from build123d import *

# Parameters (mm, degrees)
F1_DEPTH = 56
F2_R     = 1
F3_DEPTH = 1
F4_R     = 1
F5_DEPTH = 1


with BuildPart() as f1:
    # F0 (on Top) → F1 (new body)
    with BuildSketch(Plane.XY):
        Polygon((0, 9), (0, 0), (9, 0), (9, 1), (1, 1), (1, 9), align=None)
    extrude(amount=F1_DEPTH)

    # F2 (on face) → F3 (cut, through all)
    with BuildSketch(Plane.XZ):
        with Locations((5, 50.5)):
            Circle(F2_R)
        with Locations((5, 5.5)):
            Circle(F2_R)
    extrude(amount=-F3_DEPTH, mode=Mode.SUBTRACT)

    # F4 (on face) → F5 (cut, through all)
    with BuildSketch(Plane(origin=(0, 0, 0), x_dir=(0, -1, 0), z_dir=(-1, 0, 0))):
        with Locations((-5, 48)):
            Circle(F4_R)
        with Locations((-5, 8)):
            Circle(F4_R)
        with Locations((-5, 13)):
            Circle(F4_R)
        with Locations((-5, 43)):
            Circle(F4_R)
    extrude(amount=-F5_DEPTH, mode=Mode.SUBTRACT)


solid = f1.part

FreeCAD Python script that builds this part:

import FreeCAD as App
import Part
import Sketcher

V = App.Vector


def add_polygon(sketch, points):
    """Adds a closed chain of lines whose ends are joined by coincident constraints."""
    first, n = sketch.GeometryCount, len(points)
    for a, b in zip(points, points[1:] + points[:1]):
        sketch.addGeometry(Part.LineSegment(App.Vector(*a, 0), App.Vector(*b, 0)), False)
    for i in range(n):
        sketch.addConstraint(Sketcher.Constraint("Coincident", first + i, 2, first + (i + 1) % n, 1))

doc = App.newDocument("Part")
params = doc.addObject("Spreadsheet::Sheet", "Params")
for row, (alias, value) in enumerate([
    ("sketch1_width", "9 mm"),
    ("sketch1_width2", "8 mm"),
    ("pad1_length", "56 mm"),
    ("sketch2_diameter", "2 mm"),
    ("sketch3_diameter", "2 mm"),
], start=1):
    params.set(f"A{row}", alias)
    params.set(f"B{row}", "=" + value)
    params.setAlias(f"B{row}", alias)

body = doc.addObject("PartDesign::Body", "Body")

# Sketch on XY plane
sketch1 = body.newObject("Sketcher::SketchObject", "Sketch")
sketch1.AttachmentSupport = (doc.getObject("XY_Plane"), [""])
sketch1.MapMode = "FlatFace"
add_polygon(sketch1, [(0, 9), (0, 0), (9, 0), (9, 1), (1, 1), (1, 9)])  # lines 0-5
sketch1.addConstraint([
    Sketcher.Constraint("Vertical", 0),
    Sketcher.Constraint("Horizontal", 1),
    Sketcher.Constraint("Vertical", 2),
    Sketcher.Constraint("Horizontal", 3),
    Sketcher.Constraint("Vertical", 4),
    Sketcher.Constraint("Horizontal", 5),
    Sketcher.Constraint("Coincident", 0, 2, -1, 1),
    Sketcher.Constraint("Equal", 1, 0),
    Sketcher.Constraint("Equal", 5, 2),
    Sketcher.Constraint("DistanceX", 1, 1, 1, 2, 9.0),
    Sketcher.Constraint("DistanceX", 3, 2, 3, 1, 8.0),
])
sketch1.setExpression("Constraints[15]", "Params.sketch1_width")
sketch1.setExpression("Constraints[16]", "Params.sketch1_width2")
pad1 = body.newObject("PartDesign::Pad", "Pad")
pad1.Profile = sketch1
pad1.setExpression("Length", "Params.pad1_length")

# Sketch on XZ plane
sketch2 = body.newObject("Sketcher::SketchObject", "Sketch001")
sketch2.AttachmentSupport = (doc.getObject("XZ_Plane"), [""])
sketch2.MapMode = "FlatFace"
sketch2.addGeometry([
    Part.Circle(V(5, 50.5, 0), V(0, 0, 1), 1),
    Part.Circle(V(5, 5.5, 0), V(0, 0, 1), 1),
], False)
sketch2.addConstraint([
    Sketcher.Constraint("Equal", 0, 1),
    Sketcher.Constraint("Vertical", 0, 3, 1, 3),
    Sketcher.Constraint("Diameter", 0, 2.0),
    Sketcher.Constraint("DistanceX", -1, 1, 0, 3, 5.0),
    Sketcher.Constraint("DistanceY", 1, 3, 0, 3, 45.0),
    Sketcher.Constraint("DistanceY", -1, 1, 0, 3, 50.5),
])
sketch2.setExpression("Constraints[2]", "Params.sketch2_diameter")
pocket1 = body.newObject("PartDesign::Pocket", "Pocket")
pocket1.Profile = sketch2
pocket1.Type = "ThroughAll"

# Sketch on YZ plane
sketch3 = body.newObject("Sketcher::SketchObject", "Sketch002")
sketch3.AttachmentSupport = (doc.getObject("YZ_Plane"), [""])
sketch3.MapMode = "FlatFace"
sketch3.addGeometry([
    Part.Circle(V(5, 48, 0), V(0, 0, 1), 1),
    Part.Circle(V(5, 8, 0), V(0, 0, 1), 1),
    Part.Circle(V(5, 13, 0), V(0, 0, 1), 1),
    Part.Circle(V(5, 43, 0), V(0, 0, 1), 1),
], False)
sketch3.addConstraint([
    Sketcher.Constraint("Equal", 0, 1),
    Sketcher.Constraint("Equal", 1, 2),
    Sketcher.Constraint("Equal", 2, 3),
    Sketcher.Constraint("Vertical", 0, 3, 1, 3),
    Sketcher.Constraint("Vertical", 1, 3, 2, 3),
    Sketcher.Constraint("Vertical", 2, 3, 3, 3),
    Sketcher.Constraint("Diameter", 0, 2.0),
    Sketcher.Constraint("DistanceX", -1, 1, 0, 3, 5.0),
    Sketcher.Constraint("DistanceY", -1, 1, 0, 3, 48.0),
    Sketcher.Constraint("DistanceY", -1, 1, 1, 3, 8.0),
    Sketcher.Constraint("DistanceY", -1, 1, 2, 3, 13.0),
    Sketcher.Constraint("DistanceY", -1, 1, 3, 3, 43.0),
])
sketch3.setExpression("Constraints[6]", "Params.sketch3_diameter")
pocket2 = body.newObject("PartDesign::Pocket", "Pocket001")
pocket2.Profile = sketch3
pocket2.Type = "ThroughAll"
pocket2.Reversed = True

doc.recompute()
